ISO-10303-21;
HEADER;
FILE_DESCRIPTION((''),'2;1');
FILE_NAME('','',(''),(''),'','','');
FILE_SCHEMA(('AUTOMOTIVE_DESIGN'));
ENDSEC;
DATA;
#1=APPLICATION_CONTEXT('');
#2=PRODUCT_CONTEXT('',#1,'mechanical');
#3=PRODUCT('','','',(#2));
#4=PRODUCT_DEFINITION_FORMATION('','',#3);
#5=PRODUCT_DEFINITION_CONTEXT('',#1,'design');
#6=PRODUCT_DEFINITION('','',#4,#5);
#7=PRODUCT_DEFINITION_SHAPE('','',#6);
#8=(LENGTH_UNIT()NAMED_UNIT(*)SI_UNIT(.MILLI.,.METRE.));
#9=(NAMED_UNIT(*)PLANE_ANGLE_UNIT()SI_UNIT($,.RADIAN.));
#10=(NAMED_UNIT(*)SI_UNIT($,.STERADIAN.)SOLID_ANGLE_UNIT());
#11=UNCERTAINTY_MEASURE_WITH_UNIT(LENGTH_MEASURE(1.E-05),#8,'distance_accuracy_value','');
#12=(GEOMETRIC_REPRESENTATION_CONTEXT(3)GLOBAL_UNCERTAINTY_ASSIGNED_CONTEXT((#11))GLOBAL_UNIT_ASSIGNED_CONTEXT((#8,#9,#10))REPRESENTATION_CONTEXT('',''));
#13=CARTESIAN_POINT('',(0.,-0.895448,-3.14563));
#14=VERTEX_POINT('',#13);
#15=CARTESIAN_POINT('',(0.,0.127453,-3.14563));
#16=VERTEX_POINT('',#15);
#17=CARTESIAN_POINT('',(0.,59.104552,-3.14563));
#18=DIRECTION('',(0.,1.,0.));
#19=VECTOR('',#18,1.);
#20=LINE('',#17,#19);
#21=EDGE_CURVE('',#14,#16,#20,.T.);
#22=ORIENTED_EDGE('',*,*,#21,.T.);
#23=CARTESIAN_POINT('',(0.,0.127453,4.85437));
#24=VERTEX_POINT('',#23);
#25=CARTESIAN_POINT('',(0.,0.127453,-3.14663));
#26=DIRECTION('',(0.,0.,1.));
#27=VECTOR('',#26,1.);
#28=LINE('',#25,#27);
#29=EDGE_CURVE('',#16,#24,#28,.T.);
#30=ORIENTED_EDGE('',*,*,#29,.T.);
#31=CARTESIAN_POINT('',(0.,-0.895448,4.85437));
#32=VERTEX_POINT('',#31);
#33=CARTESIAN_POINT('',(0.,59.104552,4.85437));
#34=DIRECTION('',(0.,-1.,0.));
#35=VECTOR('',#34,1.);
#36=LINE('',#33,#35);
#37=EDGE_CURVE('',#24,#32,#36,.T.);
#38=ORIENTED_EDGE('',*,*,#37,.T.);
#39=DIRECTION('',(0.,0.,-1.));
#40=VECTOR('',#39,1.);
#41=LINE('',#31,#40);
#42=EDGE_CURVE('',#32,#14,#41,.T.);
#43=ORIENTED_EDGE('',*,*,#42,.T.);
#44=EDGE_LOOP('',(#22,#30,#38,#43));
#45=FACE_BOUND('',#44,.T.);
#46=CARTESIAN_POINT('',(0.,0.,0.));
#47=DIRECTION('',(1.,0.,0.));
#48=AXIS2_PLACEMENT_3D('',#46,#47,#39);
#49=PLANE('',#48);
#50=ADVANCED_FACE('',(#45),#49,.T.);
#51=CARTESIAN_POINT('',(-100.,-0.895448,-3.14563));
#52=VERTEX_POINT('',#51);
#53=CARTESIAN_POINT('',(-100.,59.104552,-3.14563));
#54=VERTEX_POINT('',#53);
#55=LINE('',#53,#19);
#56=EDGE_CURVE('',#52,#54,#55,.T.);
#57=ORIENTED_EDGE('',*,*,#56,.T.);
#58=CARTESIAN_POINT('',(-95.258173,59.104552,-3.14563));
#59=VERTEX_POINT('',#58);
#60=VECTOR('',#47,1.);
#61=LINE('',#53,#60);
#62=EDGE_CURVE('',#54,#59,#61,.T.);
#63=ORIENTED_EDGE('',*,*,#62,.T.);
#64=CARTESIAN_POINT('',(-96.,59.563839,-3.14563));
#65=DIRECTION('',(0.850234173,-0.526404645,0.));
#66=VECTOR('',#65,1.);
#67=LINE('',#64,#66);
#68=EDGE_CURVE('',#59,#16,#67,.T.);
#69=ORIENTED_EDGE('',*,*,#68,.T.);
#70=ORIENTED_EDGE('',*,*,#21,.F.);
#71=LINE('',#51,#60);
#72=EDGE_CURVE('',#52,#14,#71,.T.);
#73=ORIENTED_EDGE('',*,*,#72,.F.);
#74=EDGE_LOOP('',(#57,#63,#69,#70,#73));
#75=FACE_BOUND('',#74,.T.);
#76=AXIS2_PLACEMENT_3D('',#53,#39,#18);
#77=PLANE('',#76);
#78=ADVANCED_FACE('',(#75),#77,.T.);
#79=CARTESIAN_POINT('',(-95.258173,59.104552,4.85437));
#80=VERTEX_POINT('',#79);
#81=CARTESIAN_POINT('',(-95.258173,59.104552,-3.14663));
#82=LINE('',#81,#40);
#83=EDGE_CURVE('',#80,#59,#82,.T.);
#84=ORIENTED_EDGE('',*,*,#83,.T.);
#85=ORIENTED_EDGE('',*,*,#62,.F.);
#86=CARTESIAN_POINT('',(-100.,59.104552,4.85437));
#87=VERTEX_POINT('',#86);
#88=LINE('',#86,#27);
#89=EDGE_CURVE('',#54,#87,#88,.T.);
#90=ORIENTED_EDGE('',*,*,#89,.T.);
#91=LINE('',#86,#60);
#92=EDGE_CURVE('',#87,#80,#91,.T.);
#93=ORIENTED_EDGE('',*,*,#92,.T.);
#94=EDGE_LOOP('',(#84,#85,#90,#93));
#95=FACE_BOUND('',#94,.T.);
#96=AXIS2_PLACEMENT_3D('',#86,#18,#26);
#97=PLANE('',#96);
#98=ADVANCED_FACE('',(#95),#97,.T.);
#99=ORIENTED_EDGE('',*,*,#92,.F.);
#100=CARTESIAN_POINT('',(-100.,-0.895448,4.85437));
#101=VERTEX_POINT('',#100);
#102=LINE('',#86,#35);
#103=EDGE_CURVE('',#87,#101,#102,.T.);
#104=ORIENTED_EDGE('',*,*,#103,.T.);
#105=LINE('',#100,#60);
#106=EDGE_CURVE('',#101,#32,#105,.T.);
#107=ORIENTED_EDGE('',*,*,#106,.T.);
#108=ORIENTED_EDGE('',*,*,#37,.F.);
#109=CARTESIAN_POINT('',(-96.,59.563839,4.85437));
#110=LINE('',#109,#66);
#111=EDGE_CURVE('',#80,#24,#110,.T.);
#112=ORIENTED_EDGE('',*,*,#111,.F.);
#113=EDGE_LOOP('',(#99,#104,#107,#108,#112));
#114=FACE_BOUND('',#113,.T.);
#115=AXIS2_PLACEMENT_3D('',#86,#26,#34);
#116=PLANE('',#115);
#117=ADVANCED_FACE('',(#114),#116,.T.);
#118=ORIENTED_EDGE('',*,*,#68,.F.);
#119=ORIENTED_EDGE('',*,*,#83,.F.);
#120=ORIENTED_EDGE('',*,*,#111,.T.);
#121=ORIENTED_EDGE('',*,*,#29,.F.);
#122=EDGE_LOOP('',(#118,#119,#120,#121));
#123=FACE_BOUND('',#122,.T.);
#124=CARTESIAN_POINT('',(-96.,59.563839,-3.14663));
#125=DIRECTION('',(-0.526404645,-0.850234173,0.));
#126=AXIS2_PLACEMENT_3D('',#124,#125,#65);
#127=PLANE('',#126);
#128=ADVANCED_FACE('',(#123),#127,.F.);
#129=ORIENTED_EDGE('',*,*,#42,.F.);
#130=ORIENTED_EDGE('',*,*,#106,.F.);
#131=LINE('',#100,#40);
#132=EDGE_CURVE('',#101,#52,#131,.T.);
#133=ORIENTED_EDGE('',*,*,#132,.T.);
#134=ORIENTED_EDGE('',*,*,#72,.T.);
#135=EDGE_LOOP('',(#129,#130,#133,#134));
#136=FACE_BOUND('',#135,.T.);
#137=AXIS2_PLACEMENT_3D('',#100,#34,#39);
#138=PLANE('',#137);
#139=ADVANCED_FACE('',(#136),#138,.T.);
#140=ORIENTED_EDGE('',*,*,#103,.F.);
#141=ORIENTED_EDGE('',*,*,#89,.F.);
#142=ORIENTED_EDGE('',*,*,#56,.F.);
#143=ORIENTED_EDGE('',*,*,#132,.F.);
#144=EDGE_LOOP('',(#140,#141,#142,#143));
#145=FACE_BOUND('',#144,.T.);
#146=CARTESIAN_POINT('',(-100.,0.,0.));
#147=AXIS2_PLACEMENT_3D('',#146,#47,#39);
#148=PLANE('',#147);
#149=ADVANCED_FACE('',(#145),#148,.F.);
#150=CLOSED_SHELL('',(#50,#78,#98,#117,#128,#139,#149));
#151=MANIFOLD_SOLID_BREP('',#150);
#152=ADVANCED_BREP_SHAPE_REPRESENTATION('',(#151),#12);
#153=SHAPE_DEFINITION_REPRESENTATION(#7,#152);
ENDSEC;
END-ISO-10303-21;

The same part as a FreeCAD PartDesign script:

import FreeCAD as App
import Part
import Sketcher

V = App.Vector
Q = App.Units.Quantity

doc = App.newDocument("Part")
body = doc.addObject("PartDesign::Body", "Body")

# Sketch on YZ plane
sketch1 = body.newObject("Sketcher::SketchObject", "Sketch")
sketch1.AttachmentSupport = (doc.getObject("YZ_Plane"), [""])
sketch1.MapMode = "FlatFace"
sketch1.addGeometry(Part.LineSegment(V(59, 5, 0), V(-1, 5, 0)), False)
sketch1.addGeometry(Part.LineSegment(V(-1, 5, 0), V(-1, -3, 0)), False)
sketch1.addGeometry(Part.LineSegment(V(-1, -3, 0), V(59, -3, 0)), False)
sketch1.addGeometry(Part.LineSegment(V(59, -3, 0), V(59, 5, 0)), False)
sketch1.addConstraint(Sketcher.Constraint("Coincident", 0, 2, 1, 1))
sketch1.addConstraint(Sketcher.Constraint("Coincident", 1, 2, 2, 1))
sketch1.addConstraint(Sketcher.Constraint("Coincident", 2, 2, 3, 1))
sketch1.addConstraint(Sketcher.Constraint("Coincident", 3, 2, 0, 1))
sketch1.addConstraint(Sketcher.Constraint("Horizontal", 0))
sketch1.addConstraint(Sketcher.Constraint("Vertical", 1))
sketch1.addConstraint(Sketcher.Constraint("Horizontal", 2))
sketch1.addConstraint(Sketcher.Constraint("Vertical", 3))
sketch1.addConstraint(Sketcher.Constraint("DistanceX", 0, 2, 0, 1, Q("60 mm")))
sketch1.addConstraint(Sketcher.Constraint("DistanceY", 1, 2, 1, 1, Q("8 mm")))
sketch1.addConstraint(Sketcher.Constraint("DistanceX", 0, 2, -1, 1, Q("0.895448 mm")))
sketch1.addConstraint(Sketcher.Constraint("DistanceY", -1, 1, 0, 2, Q("4.85437 mm")))
pad1 = body.newObject("PartDesign::Pad", "Pad")
pad1.Profile = sketch1
pad1.Length = 100
pad1.Reversed = True

# Sketch on XY plane
sketch2 = body.newObject("Sketcher::SketchObject", "Sketch001")
sketch2.AttachmentSupport = (doc.getObject("XY_Plane"), [""])
sketch2.MapMode = "FlatFace"
sketch2.AttachmentOffset = App.Placement(V(0, 0, 4.85437), App.Rotation())
sketch2.addGeometry(Part.LineSegment(V(1, 61, 0), V(-96, 60, 0)), False)
sketch2.addGeometry(Part.LineSegment(V(-96, 60, 0), V(2, -1, 0)), False)
sketch2.addGeometry(Part.LineSegment(V(2, -1, 0), V(1, 61, 0)), False)
sketch2.addConstraint(Sketcher.Constraint("Coincident", 0, 2, 1, 1))
sketch2.addConstraint(Sketcher.Constraint("Coincident", 1, 2, 2, 1))
sketch2.addConstraint(Sketcher.Constraint("Coincident", 2, 2, 0, 1))
sketch2.addConstraint(Sketcher.Constraint("DistanceX", 0, 2, -1, 1, Q("96 mm")))
sketch2.addConstraint(Sketcher.Constraint("Distance", 1, Q("115.479171 mm")))
sketch2.addConstraint(Sketcher.Constraint("DistanceY", -1, 1, 0, 2, Q("59.563839 mm")))
sketch2.addConstraint(Sketcher.Constraint("DistanceY", -1, 1, 2, 2, Q("60.732011 mm")))
sketch2.addConstraint(Sketcher.Constraint("DistanceY", 1, 2, 0, 2, Q("60.788772 mm")))
sketch2.addConstraint(Sketcher.Constraint("DistanceX", 2, 2, 1, 2, Q("1.113861 mm")))
pocket1 = body.newObject("PartDesign::Pocket", "Pocket")
pocket1.Profile = sketch2
pocket1.Type = "UpToFirst"

doc.recompute()
